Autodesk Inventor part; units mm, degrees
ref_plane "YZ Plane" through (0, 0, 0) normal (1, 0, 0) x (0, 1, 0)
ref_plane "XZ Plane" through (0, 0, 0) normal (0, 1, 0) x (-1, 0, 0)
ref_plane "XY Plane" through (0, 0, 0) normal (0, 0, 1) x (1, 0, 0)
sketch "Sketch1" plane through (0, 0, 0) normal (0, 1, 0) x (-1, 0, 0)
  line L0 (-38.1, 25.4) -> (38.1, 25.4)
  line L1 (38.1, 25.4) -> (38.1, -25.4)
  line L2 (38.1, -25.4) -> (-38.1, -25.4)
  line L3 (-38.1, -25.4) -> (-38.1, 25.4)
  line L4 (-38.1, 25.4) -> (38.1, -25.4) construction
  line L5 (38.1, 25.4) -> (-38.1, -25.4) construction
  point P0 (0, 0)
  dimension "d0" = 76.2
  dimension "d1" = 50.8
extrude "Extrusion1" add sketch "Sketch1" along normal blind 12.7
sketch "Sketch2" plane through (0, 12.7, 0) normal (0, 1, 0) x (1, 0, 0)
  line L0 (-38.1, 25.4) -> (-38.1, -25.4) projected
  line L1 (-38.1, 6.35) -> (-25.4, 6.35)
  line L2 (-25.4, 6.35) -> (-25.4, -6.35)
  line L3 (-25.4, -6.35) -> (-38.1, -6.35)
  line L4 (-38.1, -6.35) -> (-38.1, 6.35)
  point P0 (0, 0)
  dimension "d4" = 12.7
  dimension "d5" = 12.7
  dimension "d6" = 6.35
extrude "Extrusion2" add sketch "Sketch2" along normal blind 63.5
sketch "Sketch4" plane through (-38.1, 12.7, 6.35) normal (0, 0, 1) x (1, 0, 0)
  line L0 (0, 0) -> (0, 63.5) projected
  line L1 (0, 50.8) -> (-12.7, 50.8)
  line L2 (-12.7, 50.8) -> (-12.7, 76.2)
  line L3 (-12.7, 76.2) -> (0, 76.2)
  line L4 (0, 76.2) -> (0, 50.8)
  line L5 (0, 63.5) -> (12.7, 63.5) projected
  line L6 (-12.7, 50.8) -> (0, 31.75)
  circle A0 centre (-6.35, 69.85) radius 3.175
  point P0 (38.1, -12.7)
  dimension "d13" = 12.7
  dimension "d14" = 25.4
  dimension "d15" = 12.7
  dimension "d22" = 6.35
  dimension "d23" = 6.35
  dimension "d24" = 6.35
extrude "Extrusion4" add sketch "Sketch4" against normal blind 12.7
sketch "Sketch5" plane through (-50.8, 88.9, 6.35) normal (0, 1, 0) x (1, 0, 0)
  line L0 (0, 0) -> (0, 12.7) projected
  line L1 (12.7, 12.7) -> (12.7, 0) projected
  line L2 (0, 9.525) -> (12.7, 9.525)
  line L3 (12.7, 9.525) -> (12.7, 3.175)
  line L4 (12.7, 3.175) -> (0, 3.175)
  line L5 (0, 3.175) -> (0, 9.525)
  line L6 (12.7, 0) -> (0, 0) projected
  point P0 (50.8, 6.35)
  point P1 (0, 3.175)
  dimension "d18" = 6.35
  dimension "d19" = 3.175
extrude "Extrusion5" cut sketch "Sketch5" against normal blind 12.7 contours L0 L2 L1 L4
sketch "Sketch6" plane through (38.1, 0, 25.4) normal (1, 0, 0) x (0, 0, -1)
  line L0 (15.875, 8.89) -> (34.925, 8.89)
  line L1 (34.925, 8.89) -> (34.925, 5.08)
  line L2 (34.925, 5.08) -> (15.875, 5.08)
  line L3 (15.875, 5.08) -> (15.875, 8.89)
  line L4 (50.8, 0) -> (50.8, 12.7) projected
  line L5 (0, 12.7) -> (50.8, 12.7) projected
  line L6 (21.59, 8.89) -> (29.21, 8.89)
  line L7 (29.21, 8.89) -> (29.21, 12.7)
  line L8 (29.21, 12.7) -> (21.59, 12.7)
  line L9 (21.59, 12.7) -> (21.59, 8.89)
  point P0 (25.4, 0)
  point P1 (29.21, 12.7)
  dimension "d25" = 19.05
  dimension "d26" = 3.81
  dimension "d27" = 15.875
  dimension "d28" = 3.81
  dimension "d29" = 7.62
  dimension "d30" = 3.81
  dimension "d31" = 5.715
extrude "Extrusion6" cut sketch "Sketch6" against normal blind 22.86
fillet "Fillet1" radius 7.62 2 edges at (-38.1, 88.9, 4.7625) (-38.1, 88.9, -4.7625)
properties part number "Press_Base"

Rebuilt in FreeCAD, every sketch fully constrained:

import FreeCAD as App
import Part
import Sketcher
from FreeCAD import Vector
Q = App.Units.Quantity


def edges_at(feature, points):
    """Names of the edges that pass closest to the given points."""
    edges = feature.Shape.Edges
    near = lambda p: min(range(len(edges)), key=lambda i: edges[i].distToShape(Part.Vertex(*p))[0])
    return sorted({f"Edge{near(p) + 1}" for p in points})

doc = App.newDocument("Part")
params = doc.addObject("Spreadsheet::Sheet", "Params")
for row, (alias, value) in enumerate([
    ("sketch1_width", "3 in"),
    ("sketch1_height", "2 in"),
    ("pad1_length", "0.5 in"),
    ("sketch2_width", "0.5 in"),
    ("pad2_length", "2.5 in"),
    ("sketch3_diameter", "0.25 in"),
    ("sketch3_height", "1 in"),
    ("sketch3_width", "0.5 in"),
    ("sketch3_height2", "1.75 in"),
    ("pad3_length", "0.5 in"),
    ("sketch4_height", "0.25 in"),
    ("sketch4_width", "0.5 in"),
    ("pocket1_length", "0.5 in"),
    ("sketch5_height", "0.3 in"),
    ("sketch5_width", "0.15 in"),
    ("sketch5_height2", "0.75 in"),
    ("pocket2_length", "0.9 in"),
    ("fillet_radius", "0.3 in"),
], start=1):
    params.set(f"A{row}", alias)
    params.set(f"B{row}", "=" + value)
    params.setAlias(f"B{row}", alias)

body = doc.addObject("PartDesign::Body", "Body")

# Sketch on XZ plane
sketch1 = body.newObject("Sketcher::SketchObject", "Sketch")
sketch1.AttachmentSupport = (doc.getObject("XZ_Plane"), [""])
sketch1.MapMode = "FlatFace"
sketch1.addGeometry(Part.LineSegment(Vector(-38, 25, 0), Vector(38, 25, 0)), False)
sketch1.addGeometry(Part.LineSegment(Vector(38, 25, 0), Vector(38, -25, 0)), False)
sketch1.addGeometry(Part.LineSegment(Vector(38, -25, 0), Vector(-38, -25, 0)), False)
sketch1.addGeometry(Part.LineSegment(Vector(-38, -25, 0), Vector(-38, 25, 0)), False)
sketch1.addConstraint(Sketcher.Constraint("Coincident", 0, 2, 1, 1))
sketch1.addConstraint(Sketcher.Constraint("Coincident", 1, 2, 2, 1))
sketch1.addConstraint(Sketcher.Constraint("Coincident", 2, 2, 3, 1))
sketch1.addConstraint(Sketcher.Constraint("Coincident", 3, 2, 0, 1))
sketch1.addConstraint(Sketcher.Constraint("Horizontal", 0))
sketch1.addConstraint(Sketcher.Constraint("Vertical", 1))
sketch1.addConstraint(Sketcher.Constraint("Horizontal", 2))
sketch1.addConstraint(Sketcher.Constraint("Vertical", 3))
sketch1.addConstraint(Sketcher.Constraint("Symmetric", 0, 2, 2, 2, -1, 1))
sketch1.addConstraint(Sketcher.Constraint("DistanceX", 0, 1, 0, 2, Q("3 in")))
sketch1.addConstraint(Sketcher.Constraint("DistanceY", 1, 2, 1, 1, Q("2 in")))
sketch1.setExpression("Constraints[9]", "Params.sketch1_width")
sketch1.setExpression("Constraints[10]", "Params.sketch1_height")
pad1 = body.newObject("PartDesign::Pad", "Pad")
pad1.Profile = sketch1
pad1.setExpression("Length", "Params.pad1_length")
pad1.Reversed = True

# Sketch on XZ plane
sketch2 = body.newObject("Sketcher::SketchObject", "Sketch001")
sketch2.AttachmentSupport = (doc.getObject("XZ_Plane"), [""])
sketch2.MapMode = "FlatFace"
sketch2.AttachmentOffset = App.Placement(Vector(0, 0, -0.5 * 25.4), App.Rotation())
sketch2.addGeometry(Part.LineSegment(Vector(-25, -6, 0), Vector(-38, -6, 0)), False)
sketch2.addGeometry(Part.LineSegment(Vector(-38, -6, 0), Vector(-38, 6, 0)), False)
sketch2.addGeometry(Part.LineSegment(Vector(-38, 6, 0), Vector(-25, 6, 0)), False)
sketch2.addGeometry(Part.LineSegment(Vector(-25, 6, 0), Vector(-25, -6, 0)), False)
sketch2.addConstraint(Sketcher.Constraint("Coincident", 0, 2, 1, 1))
sketch2.addConstraint(Sketcher.Constraint("Coincident", 1, 2, 2, 1))
sketch2.addConstraint(Sketcher.Constraint("Coincident", 2, 2, 3, 1))
sketch2.addConstraint(Sketcher.Constraint("Coincident", 3, 2, 0, 1))
sketch2.addConstraint(Sketcher.Constraint("Horizontal", 0))
sketch2.addConstraint(Sketcher.Constraint("Vertical", 1))
sketch2.addConstraint(Sketcher.Constraint("Horizontal", 2))
sketch2.addConstraint(Sketcher.Constraint("Vertical", 3))
sketch2.addConstraint(Sketcher.Constraint("Equal", 2, 1))
sketch2.addConstraint(Sketcher.Constraint("DistanceX", 0, 2, 0, 1, Q("0.5 in")))
sketch2.addConstraint(Sketcher.Constraint("DistanceY", 0, 2, -1, 1, Q("0.25 in")))
sketch2.addConstraint(Sketcher.Constraint("DistanceX", 2, 2, -1, 1, Q("1 in")))
sketch2.setExpression("Constraints[9]", "Params.sketch2_width")
pad2 = body.newObject("PartDesign::Pad", "Pad001")
pad2.Profile = sketch2
pad2.setExpression("Length", "Params.pad2_length")
pad2.Reversed = True

# Sketch on XY plane
sketch3 = body.newObject("Sketcher::SketchObject", "Sketch002")
sketch3.AttachmentSupport = (doc.getObject("XY_Plane"), [""])
sketch3.MapMode = "FlatFace"
sketch3.AttachmentOffset = App.Placement(Vector(0, 0, 0.25 * 25.4), App.Rotation())
sketch3.addGeometry(Part.LineSegment(Vector(-50.8, 63.5, 0), Vector(-38.1, 44.5, 0)), False)
sketch3.addGeometry(Part.LineSegment(Vector(-38.1, 44.5, 0), Vector(-38.1, 88.9, 0)), False)
sketch3.addGeometry(Part.LineSegment(Vector(-38.1, 88.9, 0), Vector(-50.8, 88.9, 0)), False)
sketch3.addGeometry(Part.LineSegment(Vector(-50.8, 88.9, 0), Vector(-50.8, 63.5, 0)), False)
sketch3.addGeometry(Part.Circle(Vector(-44.5, 82.5, 0), Vector(0, 0, 1), 3.2), False)
sketch3.addConstraint(Sketcher.Constraint("Coincident", 0, 2, 1, 1))
sketch3.addConstraint(Sketcher.Constraint("Coincident", 1, 2, 2, 1))
sketch3.addConstraint(Sketcher.Constraint("Coincident", 2, 2, 3, 1))
sketch3.addConstraint(Sketcher.Constraint("Coincident", 3, 2, 0, 1))
sketch3.addConstraint(Sketcher.Constraint("Vertical", 1))
sketch3.addConstraint(Sketcher.Constraint("Horizontal", 2))
sketch3.addConstraint(Sketcher.Constraint("Vertical", 3))
sketch3.addConstraint(Sketcher.Constraint("Diameter", 4, Q("0.25 in")))
sketch3.addConstraint(Sketcher.Constraint("DistanceY", 3, 2, 3, 1, Q("1 in")))
sketch3.addConstraint(Sketcher.Constraint("DistanceX", 2, 2, 2, 1, Q("0.5 in")))
sketch3.addConstraint(Sketcher.Constraint("DistanceX", 4, 3, 0, 2, Q("0.25 in")))
sketch3.addConstraint(Sketcher.Constraint("DistanceY", 4, 3, 1, 2, Q("0.25 in")))
sketch3.addConstraint(Sketcher.Constraint("DistanceX", 2, 2, -1, 1, Q("2 in")))
sketch3.addConstraint(Sketcher.Constraint("DistanceY", 1, 1, 1, 2, Q("1.75 in")))
sketch3.addConstraint(Sketcher.Constraint("DistanceY", -1, 1, 1, 2, Q("3.5 in")))
sketch3.setExpression("Constraints[7]", "Params.sketch3_diameter")
sketch3.setExpression("Constraints[8]", "Params.sketch3_height")
sketch3.setExpression("Constraints[9]", "Params.sketch3_width")
sketch3.setExpression("Constraints[13]", "Params.sketch3_height2")
pad3 = body.newObject("PartDesign::Pad", "Pad002")
pad3.Profile = sketch3
pad3.setExpression("Length", "Params.pad3_length")
pad3.Reversed = True

# Sketch on XZ plane
sketch4 = body.newObject("Sketcher::SketchObject", "Sketch003")
sketch4.AttachmentSupport = (doc.getObject("XZ_Plane"), [""])
sketch4.MapMode = "FlatFace"
sketch4.AttachmentOffset = App.Placement(Vector(0, 0, -3.5 * 25.4), App.Rotation())
sketch4.addGeometry(Part.LineSegment(Vector(-51, -3, 0), Vector(-51, 3, 0)), False)
sketch4.addGeometry(Part.LineSegment(Vector(-51, 3, 0), Vector(-38, 3, 0)), False)
sketch4.addGeometry(Part.LineSegment(Vector(-38, 3, 0), Vector(-38, -3, 0)), False)
sketch4.addGeometry(Part.LineSegment(Vector(-38, -3, 0), Vector(-51, -3, 0)), False)
sketch4.addConstraint(Sketcher.Constraint("Coincident", 0, 2, 1, 1))
sketch4.addConstraint(Sketcher.Constraint("Coincident", 1, 2, 2, 1))
sketch4.addConstraint(Sketcher.Constraint("Coincident", 2, 2, 3, 1))
sketch4.addConstraint(Sketcher.Constraint("Coincident", 3, 2, 0, 1))
sketch4.addConstraint(Sketcher.Constraint("Vertical", 0))
sketch4.addConstraint(Sketcher.Constraint("Horizontal", 1))
sketch4.addConstraint(Sketcher.Constraint("Vertical", 2))
sketch4.addConstraint(Sketcher.Constraint("Horizontal", 3))
sketch4.addConstraint(Sketcher.Constraint("DistanceY", 0, 1, 0, 2, Q("0.25 in")))
sketch4.addConstraint(Sketcher.Constraint("DistanceX", 1, 1, 1, 2, Q("0.5 in")))
sketch4.addConstraint(Sketcher.Constraint("DistanceY", -1, 1, 0, 2, Q("0.125 in")))
sketch4.addConstraint(Sketcher.Constraint("DistanceX", 0, 2, -1, 1, Q("2 in")))
sketch4.setExpression("Constraints[8]", "Params.sketch4_height")
sketch4.setExpression("Constraints[9]", "Params.sketch4_width")
pocket1 = body.newObject("PartDesign::Pocket", "Pocket")
pocket1.Profile = sketch4
pocket1.setExpression("Length", "Params.pocket1_length")
pocket1.Reversed = True

# Sketch on YZ plane
sketch5 = body.newObject("Sketcher::SketchObject", "Sketch004")
sketch5.AttachmentSupport = (doc.getObject("YZ_Plane"), [""])
sketch5.MapMode = "FlatFace"
sketch5.AttachmentOffset = App.Placement(Vector(0, 0, 1.5 * 25.4), App.Rotation())
sketch5.addGeometry(Part.LineSegment(Vector(8.9, 3.8, 0), Vector(8.9, 9.5, 0)), False)
sketch5.addGeometry(Part.LineSegment(Vector(8.9, 9.5, 0), Vector(5.1, 9.5, 0)), False)
sketch5.addGeometry(Part.LineSegment(Vector(5.1, 9.5, 0), Vector(5.1, -9.5, 0)), False)
sketch5.addGeometry(Part.LineSegment(Vector(5.1, -9.5, 0), Vector(8.9, -9.5, 0)), False)
sketch5.addGeometry(Part.LineSegment(Vector(8.9, -9.5, 0), Vector(8.9, -3.8, 0)), False)
sketch5.addGeometry(Part.LineSegment(Vector(8.9, -3.8, 0), Vector(12.7, -3.8, 0)), False)
sketch5.addGeometry(Part.LineSegment(Vector(12.7, -3.8, 0), Vector(12.7, 3.8, 0)), False)
sketch5.addGeometry(Part.LineSegment(Vector(12.7, 3.8, 0), Vector(8.9, 3.8, 0)), False)
sketch5.addConstraint(Sketcher.Constraint("Coincident", 0, 2, 1, 1))
sketch5.addConstraint(Sketcher.Constraint("Coincident", 1, 2, 2, 1))
sketch5.addConstraint(Sketcher.Constraint("Coincident", 2, 2, 3, 1))
sketch5.addConstraint(Sketcher.Constraint("Coincident", 3, 2, 4, 1))
sketch5.addConstraint(Sketcher.Constraint("Coincident", 4, 2, 5, 1))
sketch5.addConstraint(Sketcher.Constraint("Coincident", 5, 2, 6, 1))
sketch5.addConstraint(Sketcher.Constraint("Coincident", 6, 2, 7, 1))
sketch5.addConstraint(Sketcher.Constraint("Coincident", 7, 2, 0, 1))
sketch5.addConstraint(Sketcher.Constraint("Vertical", 0))
sketch5.addConstraint(Sketcher.Constraint("Horizontal", 1))
sketch5.addConstraint(Sketcher.Constraint("Vertical", 2))
sketch5.addConstraint(Sketcher.Constraint("Horizontal", 3))
sketch5.addConstraint(Sketcher.Constraint("Vertical", 4))
sketch5.addConstraint(Sketcher.Constraint("Horizontal", 5))
sketch5.addConstraint(Sketcher.Constraint("Vertical", 6))
sketch5.addConstraint(Sketcher.Constraint("Horizontal", 7))
sketch5.addConstraint(Sketcher.Constraint("Symmetric", 0, 2, 3, 2, -1))
sketch5.addConstraint(Sketcher.Constraint("Equal", 3, 5))
sketch5.addConstraint(Sketcher.Constraint("Equal", 0, 4))
sketch5.addConstraint(Sketcher.Constraint("DistanceY", 6, 1, 6, 2, Q("0.3 in")))
sketch5.addConstraint(Sketcher.Constraint("DistanceX", 1, 2, 1, 1, Q("0.15 in")))
sketch5.addConstraint(Sketcher.Constraint("DistanceY", 2, 2, 2, 1, Q("0.75 in")))
sketch5.addConstraint(Sketcher.Constraint("DistanceX", -1, 1, 1, 2, Q("0.2 in")))
sketch5.setExpression("Constraints[19]", "Params.sketch5_height")
sketch5.setExpression("Constraints[20]", "Params.sketch5_width")
sketch5.setExpression("Constraints[21]", "Params.sketch5_height2")
pocket2 = body.newObject("PartDesign::Pocket", "Pocket001")
pocket2.Profile = sketch5
pocket2.setExpression("Length", "Params.pocket2_length")
doc.recompute()

fillet = body.newObject("PartDesign::Fillet", "Fillet")
fillet.Base = (pocket2, edges_at(pocket2, [(-38.1, 88.9, 4.763), (-38.1, 88.9, -4.763)]))
fillet.setExpression("Radius", "Params.fillet_radius")

doc.recompute()
